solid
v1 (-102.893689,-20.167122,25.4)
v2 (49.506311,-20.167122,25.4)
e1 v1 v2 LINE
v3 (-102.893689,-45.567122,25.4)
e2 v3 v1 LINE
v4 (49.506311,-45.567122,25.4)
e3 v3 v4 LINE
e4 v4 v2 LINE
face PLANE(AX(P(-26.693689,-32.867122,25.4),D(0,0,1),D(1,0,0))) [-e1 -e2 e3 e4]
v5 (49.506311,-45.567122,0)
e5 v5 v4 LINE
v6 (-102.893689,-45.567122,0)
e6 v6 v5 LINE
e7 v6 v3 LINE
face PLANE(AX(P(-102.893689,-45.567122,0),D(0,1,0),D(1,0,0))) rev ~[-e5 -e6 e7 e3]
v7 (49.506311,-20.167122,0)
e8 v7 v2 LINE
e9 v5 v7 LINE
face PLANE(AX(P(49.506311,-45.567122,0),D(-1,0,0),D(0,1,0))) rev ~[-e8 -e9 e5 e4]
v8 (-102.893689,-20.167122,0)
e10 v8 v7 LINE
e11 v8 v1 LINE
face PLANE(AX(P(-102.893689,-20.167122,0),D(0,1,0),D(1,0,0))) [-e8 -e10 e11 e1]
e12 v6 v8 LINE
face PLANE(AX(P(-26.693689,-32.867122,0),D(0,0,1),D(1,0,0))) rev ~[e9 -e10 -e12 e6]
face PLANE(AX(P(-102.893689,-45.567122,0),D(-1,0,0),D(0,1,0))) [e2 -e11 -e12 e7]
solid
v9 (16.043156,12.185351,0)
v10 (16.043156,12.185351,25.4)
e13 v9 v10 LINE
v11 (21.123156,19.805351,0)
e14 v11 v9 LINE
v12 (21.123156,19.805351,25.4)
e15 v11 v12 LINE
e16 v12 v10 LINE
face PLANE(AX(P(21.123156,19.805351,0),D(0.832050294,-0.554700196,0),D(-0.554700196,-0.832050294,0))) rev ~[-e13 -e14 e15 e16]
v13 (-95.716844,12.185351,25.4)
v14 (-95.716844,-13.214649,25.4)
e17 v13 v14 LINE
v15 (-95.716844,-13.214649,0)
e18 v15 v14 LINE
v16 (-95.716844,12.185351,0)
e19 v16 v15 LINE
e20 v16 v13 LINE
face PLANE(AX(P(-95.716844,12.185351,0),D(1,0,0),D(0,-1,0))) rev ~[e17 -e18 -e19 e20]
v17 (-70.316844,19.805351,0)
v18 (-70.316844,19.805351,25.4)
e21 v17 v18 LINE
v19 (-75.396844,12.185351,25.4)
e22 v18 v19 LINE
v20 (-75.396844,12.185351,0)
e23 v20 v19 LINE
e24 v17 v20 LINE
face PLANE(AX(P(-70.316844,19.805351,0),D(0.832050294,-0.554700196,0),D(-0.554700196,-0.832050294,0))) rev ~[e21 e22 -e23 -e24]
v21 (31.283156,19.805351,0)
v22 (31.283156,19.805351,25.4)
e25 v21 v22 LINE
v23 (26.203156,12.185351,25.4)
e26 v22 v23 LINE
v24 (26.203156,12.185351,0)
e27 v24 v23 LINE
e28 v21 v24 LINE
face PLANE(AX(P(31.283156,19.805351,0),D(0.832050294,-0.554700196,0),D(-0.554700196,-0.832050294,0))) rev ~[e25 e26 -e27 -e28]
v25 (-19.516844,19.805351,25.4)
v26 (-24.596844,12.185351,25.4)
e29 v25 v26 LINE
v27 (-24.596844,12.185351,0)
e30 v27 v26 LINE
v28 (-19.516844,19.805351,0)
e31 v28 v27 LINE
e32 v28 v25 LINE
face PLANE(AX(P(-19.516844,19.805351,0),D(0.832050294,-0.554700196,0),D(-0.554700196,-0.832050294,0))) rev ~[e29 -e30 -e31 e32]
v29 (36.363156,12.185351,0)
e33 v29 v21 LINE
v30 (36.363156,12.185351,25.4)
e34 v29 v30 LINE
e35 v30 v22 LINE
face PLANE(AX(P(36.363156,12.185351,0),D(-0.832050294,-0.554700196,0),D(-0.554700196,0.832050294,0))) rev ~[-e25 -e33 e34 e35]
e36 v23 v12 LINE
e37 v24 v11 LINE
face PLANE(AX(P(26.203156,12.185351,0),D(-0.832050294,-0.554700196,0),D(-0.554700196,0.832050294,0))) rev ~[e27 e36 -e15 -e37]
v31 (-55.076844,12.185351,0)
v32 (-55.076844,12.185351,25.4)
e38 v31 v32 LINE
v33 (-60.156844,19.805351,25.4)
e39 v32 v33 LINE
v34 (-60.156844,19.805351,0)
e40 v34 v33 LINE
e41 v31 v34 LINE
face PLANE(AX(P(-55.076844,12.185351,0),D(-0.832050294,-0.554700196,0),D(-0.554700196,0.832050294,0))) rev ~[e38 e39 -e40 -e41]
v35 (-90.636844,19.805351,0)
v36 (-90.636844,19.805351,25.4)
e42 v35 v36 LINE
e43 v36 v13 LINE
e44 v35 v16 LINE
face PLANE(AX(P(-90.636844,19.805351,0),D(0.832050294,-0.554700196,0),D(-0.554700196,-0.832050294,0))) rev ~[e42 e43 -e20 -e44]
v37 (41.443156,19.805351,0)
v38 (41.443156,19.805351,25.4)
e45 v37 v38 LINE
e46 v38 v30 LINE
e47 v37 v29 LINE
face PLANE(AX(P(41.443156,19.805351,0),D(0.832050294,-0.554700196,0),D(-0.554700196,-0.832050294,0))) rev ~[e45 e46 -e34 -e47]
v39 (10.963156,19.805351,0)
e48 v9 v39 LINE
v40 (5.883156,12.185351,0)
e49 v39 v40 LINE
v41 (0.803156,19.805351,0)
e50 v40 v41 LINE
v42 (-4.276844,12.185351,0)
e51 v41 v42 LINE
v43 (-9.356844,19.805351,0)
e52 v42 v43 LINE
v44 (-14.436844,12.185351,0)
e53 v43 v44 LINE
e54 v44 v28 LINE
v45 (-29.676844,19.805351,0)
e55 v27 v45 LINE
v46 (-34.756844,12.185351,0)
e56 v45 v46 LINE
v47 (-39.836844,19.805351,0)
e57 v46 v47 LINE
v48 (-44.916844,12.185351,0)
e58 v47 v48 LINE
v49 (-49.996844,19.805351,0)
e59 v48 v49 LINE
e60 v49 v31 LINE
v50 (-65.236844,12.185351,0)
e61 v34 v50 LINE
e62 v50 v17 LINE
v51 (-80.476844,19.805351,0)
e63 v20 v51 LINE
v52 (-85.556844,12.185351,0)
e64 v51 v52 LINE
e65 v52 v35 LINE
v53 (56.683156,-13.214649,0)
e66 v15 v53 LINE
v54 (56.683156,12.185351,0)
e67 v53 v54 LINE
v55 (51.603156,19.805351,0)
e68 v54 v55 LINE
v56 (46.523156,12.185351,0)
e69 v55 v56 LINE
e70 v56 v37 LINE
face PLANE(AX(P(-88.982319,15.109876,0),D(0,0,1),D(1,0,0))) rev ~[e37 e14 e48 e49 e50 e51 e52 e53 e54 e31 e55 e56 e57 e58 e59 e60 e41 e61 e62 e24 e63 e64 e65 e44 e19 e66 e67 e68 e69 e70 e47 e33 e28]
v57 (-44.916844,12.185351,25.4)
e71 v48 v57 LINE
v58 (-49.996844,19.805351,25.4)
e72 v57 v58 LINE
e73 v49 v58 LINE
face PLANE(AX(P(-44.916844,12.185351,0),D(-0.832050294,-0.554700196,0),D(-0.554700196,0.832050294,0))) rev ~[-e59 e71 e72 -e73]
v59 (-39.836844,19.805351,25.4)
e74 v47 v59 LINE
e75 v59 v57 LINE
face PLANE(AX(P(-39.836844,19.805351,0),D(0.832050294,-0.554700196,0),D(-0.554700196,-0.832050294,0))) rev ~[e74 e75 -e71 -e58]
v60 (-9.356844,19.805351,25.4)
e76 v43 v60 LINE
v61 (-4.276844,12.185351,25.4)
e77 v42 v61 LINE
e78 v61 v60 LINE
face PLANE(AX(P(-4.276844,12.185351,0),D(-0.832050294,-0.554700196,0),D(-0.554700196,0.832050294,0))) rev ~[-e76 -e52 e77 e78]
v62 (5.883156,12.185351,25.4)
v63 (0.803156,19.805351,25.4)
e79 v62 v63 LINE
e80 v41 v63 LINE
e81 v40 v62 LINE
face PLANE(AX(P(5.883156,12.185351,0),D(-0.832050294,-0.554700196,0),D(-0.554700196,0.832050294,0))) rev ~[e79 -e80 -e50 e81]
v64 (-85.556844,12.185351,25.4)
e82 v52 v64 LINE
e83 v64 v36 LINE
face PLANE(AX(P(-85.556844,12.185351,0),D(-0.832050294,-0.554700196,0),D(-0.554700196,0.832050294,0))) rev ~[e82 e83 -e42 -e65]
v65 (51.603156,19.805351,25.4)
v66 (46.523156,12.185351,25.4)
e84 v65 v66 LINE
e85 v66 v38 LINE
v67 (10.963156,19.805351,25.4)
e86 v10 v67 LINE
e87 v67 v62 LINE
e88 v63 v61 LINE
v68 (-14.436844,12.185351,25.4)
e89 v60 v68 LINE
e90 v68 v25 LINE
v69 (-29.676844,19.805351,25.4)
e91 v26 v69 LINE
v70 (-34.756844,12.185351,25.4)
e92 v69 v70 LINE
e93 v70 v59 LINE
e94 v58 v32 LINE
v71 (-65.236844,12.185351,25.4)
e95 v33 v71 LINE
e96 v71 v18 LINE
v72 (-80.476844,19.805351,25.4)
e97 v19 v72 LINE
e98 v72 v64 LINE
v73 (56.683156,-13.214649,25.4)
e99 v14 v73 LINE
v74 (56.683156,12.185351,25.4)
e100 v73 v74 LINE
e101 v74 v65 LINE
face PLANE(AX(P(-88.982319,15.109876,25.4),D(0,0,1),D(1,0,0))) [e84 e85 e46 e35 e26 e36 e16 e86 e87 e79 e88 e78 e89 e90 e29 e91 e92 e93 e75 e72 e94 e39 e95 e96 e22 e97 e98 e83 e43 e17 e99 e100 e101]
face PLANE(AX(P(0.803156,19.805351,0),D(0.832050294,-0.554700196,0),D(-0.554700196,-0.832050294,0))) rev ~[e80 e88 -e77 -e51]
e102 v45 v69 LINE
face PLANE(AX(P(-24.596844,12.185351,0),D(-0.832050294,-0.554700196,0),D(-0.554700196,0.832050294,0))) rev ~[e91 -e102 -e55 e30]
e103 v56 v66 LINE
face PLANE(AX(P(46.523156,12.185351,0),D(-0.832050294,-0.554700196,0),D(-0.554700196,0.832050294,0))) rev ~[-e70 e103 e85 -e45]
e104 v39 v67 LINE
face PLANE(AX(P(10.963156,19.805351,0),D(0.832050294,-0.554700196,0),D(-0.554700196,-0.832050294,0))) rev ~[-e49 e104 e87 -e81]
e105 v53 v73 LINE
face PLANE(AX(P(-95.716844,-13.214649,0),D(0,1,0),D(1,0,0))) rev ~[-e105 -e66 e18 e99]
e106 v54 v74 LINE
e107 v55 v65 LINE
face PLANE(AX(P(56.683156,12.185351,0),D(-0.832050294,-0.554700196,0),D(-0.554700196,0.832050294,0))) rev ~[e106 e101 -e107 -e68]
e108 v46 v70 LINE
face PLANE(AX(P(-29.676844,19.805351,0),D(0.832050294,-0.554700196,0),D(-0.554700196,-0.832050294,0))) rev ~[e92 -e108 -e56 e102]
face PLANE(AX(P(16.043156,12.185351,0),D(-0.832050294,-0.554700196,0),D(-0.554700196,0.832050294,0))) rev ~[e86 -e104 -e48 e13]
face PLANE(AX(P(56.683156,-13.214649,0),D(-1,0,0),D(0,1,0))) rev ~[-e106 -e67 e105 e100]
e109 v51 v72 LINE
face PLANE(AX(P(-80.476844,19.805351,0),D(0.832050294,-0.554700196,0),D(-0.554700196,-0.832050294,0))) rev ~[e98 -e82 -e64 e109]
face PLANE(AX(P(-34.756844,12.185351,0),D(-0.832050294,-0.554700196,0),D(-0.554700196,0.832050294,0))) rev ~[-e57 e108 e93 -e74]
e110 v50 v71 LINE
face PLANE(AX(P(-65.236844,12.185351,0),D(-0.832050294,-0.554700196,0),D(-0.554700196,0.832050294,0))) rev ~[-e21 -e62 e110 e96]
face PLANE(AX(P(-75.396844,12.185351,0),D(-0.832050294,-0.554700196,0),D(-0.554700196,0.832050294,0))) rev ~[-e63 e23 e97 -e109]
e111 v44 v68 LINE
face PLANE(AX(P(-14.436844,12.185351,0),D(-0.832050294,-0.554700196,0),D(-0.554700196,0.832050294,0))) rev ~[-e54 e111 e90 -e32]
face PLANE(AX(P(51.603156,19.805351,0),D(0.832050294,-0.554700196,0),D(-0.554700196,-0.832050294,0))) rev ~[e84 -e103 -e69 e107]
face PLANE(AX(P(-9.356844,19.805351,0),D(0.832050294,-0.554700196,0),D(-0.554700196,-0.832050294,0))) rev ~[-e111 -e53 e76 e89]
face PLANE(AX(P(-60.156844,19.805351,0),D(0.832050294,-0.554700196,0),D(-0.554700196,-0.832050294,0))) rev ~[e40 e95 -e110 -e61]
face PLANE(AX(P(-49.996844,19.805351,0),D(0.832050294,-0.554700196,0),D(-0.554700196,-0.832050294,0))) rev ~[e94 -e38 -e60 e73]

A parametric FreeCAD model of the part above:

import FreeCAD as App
import Part
import Sketcher
Q = App.Units.Quantity


def add_polygon(sketch, points):
    """Adds a closed chain of lines whose ends are joined by coincident constraints."""
    first, n = sketch.GeometryCount, len(points)
    for a, b in zip(points, points[1:] + points[:1]):
        sketch.addGeometry(Part.LineSegment(App.Vector(*a, 0), App.Vector(*b, 0)), False)
    for i in range(n):
        sketch.addConstraint(Sketcher.Constraint("Coincident", first + i, 2, first + (i + 1) % n, 1))

doc = App.newDocument("Part")
params = doc.addObject("Spreadsheet::Sheet", "Params")
for row, (alias, value) in enumerate([
    ("sketch1_width", "6 in"),
    ("sketch1_height", "1 in"),
    ("pad1_length", "1 in"),
    ("sketch2_width", "6 in"),
    ("sketch2_height", "1 in"),
    ("pad2_length", "1 in"),
], start=1):
    params.set(f"A{row}", alias)
    params.set(f"B{row}", "=" + value)
    params.setAlias(f"B{row}", alias)

body = doc.addObject("PartDesign::Body", "Body")

# Sketch on XY plane
sketch1 = doc.addObject("Sketcher::SketchObject", "Sketch")
body.addObject(sketch1)
sketch1.AttachmentSupport = (doc.XY_Plane, [""])
sketch1.MapMode = "FlatFace"
add_polygon(sketch1, [(-85.556844, 12.185351), (-90.636844, 19.805351), (-95.716844, 12.185351), (-95.716844, -13.214649), (56.683156, -13.214649), (56.683156, 12.185351), (51.603156, 19.805351), (46.523156, 12.185351), (41.443156, 19.805351), (36.363156, 12.185351), (31.283156, 19.805351), (26.203156, 12.185351), (21.123156, 19.805351), (16.043156, 12.185351), (10.963156, 19.805351), (5.883156, 12.185351), (0.803156, 19.805351), (-4.276844, 12.185351), (-9.356844, 19.805351), (-14.436844, 12.185351), (-19.516844, 19.805351), (-24.596844, 12.185351), (-29.676844, 19.805351), (-34.756844, 12.185351), (-39.836844, 19.805351), (-44.916844, 12.185351), (-49.996844, 19.805351), (-55.076844, 12.185351), (-60.156844, 19.805351), (-65.236844, 12.185351), (-70.316844, 19.805351), (-75.396844, 12.185351), (-80.476844, 19.805351)])  # lines 0-32
sketch1.addConstraint(Sketcher.Constraint("Vertical", 2))
sketch1.addConstraint(Sketcher.Constraint("Horizontal", 3))
sketch1.addConstraint(Sketcher.Constraint("Vertical", 4))
sketch1.addConstraint(Sketcher.Constraint("Parallel", 0, 5))
sketch1.addConstraint(Sketcher.Constraint("Parallel", 1, 6))
sketch1.addConstraint(Sketcher.Constraint("Parallel", 5, 7))
sketch1.addConstraint(Sketcher.Constraint("Parallel", 6, 8))
sketch1.addConstraint(Sketcher.Constraint("Parallel", 7, 9))
sketch1.addConstraint(Sketcher.Constraint("Parallel", 8, 10))
sketch1.addConstraint(Sketcher.Constraint("Parallel", 9, 11))
sketch1.addConstraint(Sketcher.Constraint("Parallel", 10, 12))
sketch1.addConstraint(Sketcher.Constraint("Parallel", 11, 13))
sketch1.addConstraint(Sketcher.Constraint("Parallel", 12, 14))
sketch1.addConstraint(Sketcher.Constraint("Parallel", 13, 15))
sketch1.addConstraint(Sketcher.Constraint("Parallel", 14, 16))
sketch1.addConstraint(Sketcher.Constraint("Parallel", 15, 17))
sketch1.addConstraint(Sketcher.Constraint("Parallel", 16, 18))
sketch1.addConstraint(Sketcher.Constraint("Parallel", 17, 19))
sketch1.addConstraint(Sketcher.Constraint("Parallel", 18, 20))
sketch1.addConstraint(Sketcher.Constraint("Parallel", 19, 21))
sketch1.addConstraint(Sketcher.Constraint("Parallel", 20, 22))
sketch1.addConstraint(Sketcher.Constraint("Parallel", 21, 23))
sketch1.addConstraint(Sketcher.Constraint("Parallel", 22, 24))
sketch1.addConstraint(Sketcher.Constraint("Parallel", 23, 25))
sketch1.addConstraint(Sketcher.Constraint("Parallel", 24, 26))
sketch1.addConstraint(Sketcher.Constraint("Parallel", 25, 27))
sketch1.addConstraint(Sketcher.Constraint("Parallel", 26, 28))
sketch1.addConstraint(Sketcher.Constraint("Parallel", 27, 29))
sketch1.addConstraint(Sketcher.Constraint("Parallel", 28, 30))
sketch1.addConstraint(Sketcher.Constraint("Parallel", 29, 31))
sketch1.addConstraint(Sketcher.Constraint("Parallel", 30, 32))
sketch1.addConstraint(Sketcher.Constraint("Horizontal", 1, 2, 4, 2))
sketch1.addConstraint(Sketcher.Constraint("Horizontal", 0, 2, 5, 2))
sketch1.addConstraint(Sketcher.Constraint("Horizontal", 4, 2, 6, 2))
sketch1.addConstraint(Sketcher.Constraint("Horizontal", 5, 2, 7, 2))
sketch1.addConstraint(Sketcher.Constraint("Horizontal", 6, 2, 8, 2))
sketch1.addConstraint(Sketcher.Constraint("Horizontal", 7, 2, 9, 2))
sketch1.addConstraint(Sketcher.Constraint("Horizontal", 8, 2, 10, 2))
sketch1.addConstraint(Sketcher.Constraint("Horizontal", 9, 2, 11, 2))
sketch1.addConstraint(Sketcher.Constraint("Horizontal", 10, 2, 12, 2))
sketch1.addConstraint(Sketcher.Constraint("Horizontal", 11, 2, 13, 2))
sketch1.addConstraint(Sketcher.Constraint("Horizontal", 12, 2, 14, 2))
sketch1.addConstraint(Sketcher.Constraint("Horizontal", 13, 2, 15, 2))
sketch1.addConstraint(Sketcher.Constraint("Horizontal", 14, 2, 16, 2))
sketch1.addConstraint(Sketcher.Constraint("Horizontal", 15, 2, 17, 2))
sketch1.addConstraint(Sketcher.Constraint("Horizontal", 16, 2, 18, 2))
sketch1.addConstraint(Sketcher.Constraint("Horizontal", 17, 2, 19, 2))
sketch1.addConstraint(Sketcher.Constraint("Horizontal", 18, 2, 20, 2))
sketch1.addConstraint(Sketcher.Constraint("Horizontal", 19, 2, 21, 2))
sketch1.addConstraint(Sketcher.Constraint("Horizontal", 20, 2, 22, 2))
sketch1.addConstraint(Sketcher.Constraint("Horizontal", 21, 2, 23, 2))
sketch1.addConstraint(Sketcher.Constraint("Horizontal", 22, 2, 24, 2))
sketch1.addConstraint(Sketcher.Constraint("Horizontal", 23, 2, 25, 2))
sketch1.addConstraint(Sketcher.Constraint("Horizontal", 24, 2, 26, 2))
sketch1.addConstraint(Sketcher.Constraint("Horizontal", 25, 2, 27, 2))
sketch1.addConstraint(Sketcher.Constraint("Horizontal", 26, 2, 28, 2))
sketch1.addConstraint(Sketcher.Constraint("Horizontal", 27, 2, 29, 2))
sketch1.addConstraint(Sketcher.Constraint("Horizontal", 28, 2, 30, 2))
sketch1.addConstraint(Sketcher.Constraint("Horizontal", 29, 2, 31, 2))
sketch1.addConstraint(Sketcher.Constraint("Horizontal", 30, 2, 32, 2))
sketch1.addConstraint(Sketcher.Constraint("Equal", 0, 1))
sketch1.addConstraint(Sketcher.Constraint("DistanceX", 3, 1, 3, 2, Q("6 in")))
sketch1.addConstraint(Sketcher.Constraint("DistanceY", 2, 2, 2, 1, Q("1 in")))
sketch1.addConstraint(Sketcher.Constraint("DistanceY", 1, 2, 0, 2, Q("0.3 in")))
sketch1.addConstraint(Sketcher.Constraint("DistanceY", -1, 1, 0, 2, 19.805351))
sketch1.addConstraint(Sketcher.Constraint("DistanceX", 0, 2, -1, 1, 90.636844))
sketch1.setExpression("Constraints[94]", "Params.sketch1_width")
sketch1.setExpression("Constraints[95]", "Params.sketch1_height")
pad1 = doc.addObject("PartDesign::Pad", "Pad")
body.addObject(pad1)
pad1.Profile = sketch1
pad1.setExpression("Length", "Params.pad1_length")
body2 = doc.addObject("PartDesign::Body", "Body001")

# Sketch on XY plane
sketch2 = doc.addObject("Sketcher::SketchObject", "Sketch001")
body2.addObject(sketch2)
sketch2.AttachmentSupport = (doc.getObject("XY_Plane001"), [""])
sketch2.MapMode = "FlatFace"
add_polygon(sketch2, [(-102.893689, -20.167122), (-102.893689, -45.567122), (49.506311, -45.567122), (49.506311, -20.167122)])  # lines 0-3
sketch2.addConstraint(Sketcher.Constraint("Vertical", 0))
sketch2.addConstraint(Sketcher.Constraint("Horizontal", 1))
sketch2.addConstraint(Sketcher.Constraint("Vertical", 2))
sketch2.addConstraint(Sketcher.Constraint("Horizontal", 3))
sketch2.addConstraint(Sketcher.Constraint("DistanceX", 1, 1, 1, 2, Q("6 in")))
sketch2.addConstraint(Sketcher.Constraint("DistanceY", 0, 2, 0, 1, Q("1 in")))
sketch2.addConstraint(Sketcher.Constraint("DistanceX", 0, 2, -1, 1, 102.893689))
sketch2.addConstraint(Sketcher.Constraint("DistanceY", 0, 2, -1, 1, 45.567122))
sketch2.setExpression("Constraints[8]", "Params.sketch2_width")
sketch2.setExpression("Constraints[9]", "Params.sketch2_height")
pad2 = doc.addObject("PartDesign::Pad", "Pad001")
body2.addObject(pad2)
pad2.Profile = sketch2
pad2.setExpression("Length", "Params.pad2_length")

doc.recompute()
